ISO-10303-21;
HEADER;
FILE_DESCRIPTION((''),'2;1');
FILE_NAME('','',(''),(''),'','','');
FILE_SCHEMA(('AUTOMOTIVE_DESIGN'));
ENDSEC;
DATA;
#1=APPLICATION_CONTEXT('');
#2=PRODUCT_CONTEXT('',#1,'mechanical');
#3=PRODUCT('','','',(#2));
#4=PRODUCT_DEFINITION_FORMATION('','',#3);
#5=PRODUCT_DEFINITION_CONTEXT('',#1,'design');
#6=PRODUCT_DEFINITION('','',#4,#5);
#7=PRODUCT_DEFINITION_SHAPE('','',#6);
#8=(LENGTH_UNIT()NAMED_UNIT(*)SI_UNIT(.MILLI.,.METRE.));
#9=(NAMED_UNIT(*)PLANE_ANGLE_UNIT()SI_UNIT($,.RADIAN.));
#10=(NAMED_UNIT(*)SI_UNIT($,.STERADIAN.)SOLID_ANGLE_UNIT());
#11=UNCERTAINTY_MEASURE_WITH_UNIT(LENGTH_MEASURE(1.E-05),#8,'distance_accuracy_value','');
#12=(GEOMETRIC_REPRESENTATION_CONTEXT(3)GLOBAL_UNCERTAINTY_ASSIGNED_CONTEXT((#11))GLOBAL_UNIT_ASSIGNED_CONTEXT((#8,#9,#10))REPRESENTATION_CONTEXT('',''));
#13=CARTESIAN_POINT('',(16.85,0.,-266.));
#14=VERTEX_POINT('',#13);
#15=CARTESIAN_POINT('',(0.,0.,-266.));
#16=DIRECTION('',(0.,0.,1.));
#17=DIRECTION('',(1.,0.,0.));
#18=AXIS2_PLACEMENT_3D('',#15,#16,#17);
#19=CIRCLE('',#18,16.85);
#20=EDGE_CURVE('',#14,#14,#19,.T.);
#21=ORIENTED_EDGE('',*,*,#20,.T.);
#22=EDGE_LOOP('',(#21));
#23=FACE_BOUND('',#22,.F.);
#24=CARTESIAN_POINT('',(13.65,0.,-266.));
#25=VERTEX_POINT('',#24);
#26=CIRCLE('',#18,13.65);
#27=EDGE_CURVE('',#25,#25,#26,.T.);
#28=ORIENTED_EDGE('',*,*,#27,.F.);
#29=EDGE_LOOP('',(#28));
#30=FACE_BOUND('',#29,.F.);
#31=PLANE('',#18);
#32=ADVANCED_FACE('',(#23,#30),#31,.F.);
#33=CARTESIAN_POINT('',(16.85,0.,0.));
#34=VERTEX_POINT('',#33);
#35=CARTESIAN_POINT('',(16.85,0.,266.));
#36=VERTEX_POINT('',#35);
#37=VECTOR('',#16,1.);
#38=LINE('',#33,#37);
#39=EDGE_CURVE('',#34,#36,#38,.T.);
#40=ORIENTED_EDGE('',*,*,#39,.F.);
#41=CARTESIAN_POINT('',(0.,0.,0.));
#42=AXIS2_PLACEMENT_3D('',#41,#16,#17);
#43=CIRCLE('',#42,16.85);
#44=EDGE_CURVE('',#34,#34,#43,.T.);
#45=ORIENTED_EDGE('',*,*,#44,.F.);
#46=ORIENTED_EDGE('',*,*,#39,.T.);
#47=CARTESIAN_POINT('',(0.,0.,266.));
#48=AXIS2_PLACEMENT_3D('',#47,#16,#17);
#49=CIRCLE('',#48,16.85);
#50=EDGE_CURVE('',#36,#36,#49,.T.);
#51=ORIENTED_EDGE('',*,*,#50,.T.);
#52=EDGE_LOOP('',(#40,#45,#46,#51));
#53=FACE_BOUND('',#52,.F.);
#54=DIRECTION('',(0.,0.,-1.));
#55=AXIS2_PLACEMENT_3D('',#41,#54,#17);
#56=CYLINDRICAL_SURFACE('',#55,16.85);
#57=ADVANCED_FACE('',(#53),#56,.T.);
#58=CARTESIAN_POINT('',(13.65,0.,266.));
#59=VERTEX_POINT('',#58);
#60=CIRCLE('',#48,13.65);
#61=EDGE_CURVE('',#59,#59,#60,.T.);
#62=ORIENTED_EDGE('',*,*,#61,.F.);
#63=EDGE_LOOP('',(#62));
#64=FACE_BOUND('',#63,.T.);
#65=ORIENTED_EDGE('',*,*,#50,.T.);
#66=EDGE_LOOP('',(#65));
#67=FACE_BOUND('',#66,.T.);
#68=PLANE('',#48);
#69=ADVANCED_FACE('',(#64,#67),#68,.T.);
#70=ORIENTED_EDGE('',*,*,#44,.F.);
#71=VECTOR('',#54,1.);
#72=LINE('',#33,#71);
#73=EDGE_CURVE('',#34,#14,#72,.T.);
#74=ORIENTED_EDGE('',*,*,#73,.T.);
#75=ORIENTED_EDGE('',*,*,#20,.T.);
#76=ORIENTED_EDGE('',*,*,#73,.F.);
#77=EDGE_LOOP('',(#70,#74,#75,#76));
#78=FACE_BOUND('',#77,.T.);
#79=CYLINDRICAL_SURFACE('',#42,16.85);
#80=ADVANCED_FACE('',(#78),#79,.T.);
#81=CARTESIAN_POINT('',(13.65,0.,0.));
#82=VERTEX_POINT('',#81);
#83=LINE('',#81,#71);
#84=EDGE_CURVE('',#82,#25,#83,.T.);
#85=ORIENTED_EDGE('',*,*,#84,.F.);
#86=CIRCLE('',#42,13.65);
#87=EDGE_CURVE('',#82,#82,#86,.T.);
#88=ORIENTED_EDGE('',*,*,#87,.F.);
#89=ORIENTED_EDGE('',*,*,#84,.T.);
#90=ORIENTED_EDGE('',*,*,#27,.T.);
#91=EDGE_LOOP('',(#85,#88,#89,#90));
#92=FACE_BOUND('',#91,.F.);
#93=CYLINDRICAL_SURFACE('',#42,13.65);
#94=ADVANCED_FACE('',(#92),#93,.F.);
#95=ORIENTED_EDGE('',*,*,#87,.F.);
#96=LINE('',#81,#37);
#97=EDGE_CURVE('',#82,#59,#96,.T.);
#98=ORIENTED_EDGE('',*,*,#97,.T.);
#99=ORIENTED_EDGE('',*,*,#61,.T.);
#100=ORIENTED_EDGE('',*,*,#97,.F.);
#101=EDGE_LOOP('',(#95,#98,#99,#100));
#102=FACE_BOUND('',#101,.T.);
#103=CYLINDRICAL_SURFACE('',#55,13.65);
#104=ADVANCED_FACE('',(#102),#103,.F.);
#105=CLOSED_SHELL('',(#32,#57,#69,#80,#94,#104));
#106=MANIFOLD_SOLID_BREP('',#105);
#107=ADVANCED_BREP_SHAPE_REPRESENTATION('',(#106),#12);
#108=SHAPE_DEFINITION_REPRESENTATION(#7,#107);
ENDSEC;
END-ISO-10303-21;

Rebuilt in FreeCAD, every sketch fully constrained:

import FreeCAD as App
import Part
import Sketcher
Q = App.Units.Quantity

doc = App.newDocument("Part")
body = doc.addObject("PartDesign::Body", "Body")

sketch1 = body.newObject("Sketcher::SketchObject", "Sketch")
sketch1.AttachmentSupport = (doc.getObject("XY_Plane"), [""])
sketch1.MapMode = "FlatFace"
sketch1.addGeometry(Part.Circle(App.Vector(0, 0, 0), App.Vector(0, 0, 1), 17), False)
sketch1.addGeometry(Part.Circle(App.Vector(0, 0, 0), App.Vector(0, 0, 1), 14), False)
sketch1.addConstraint(Sketcher.Constraint("Coincident", 0, 3, -1, 1))
sketch1.addConstraint(Sketcher.Constraint("Coincident", 1, 3, -1, 1))
sketch1.addConstraint(Sketcher.Constraint("Diameter", 0, Q("33.7 mm")))
sketch1.addConstraint(Sketcher.Constraint("Diameter", 1, Q("27.3 mm")))
pad1 = body.newObject("PartDesign::Pad", "Pad")
pad1.Profile = sketch1
pad1.Length = 532
pad1.Midplane = True

doc.recompute()
